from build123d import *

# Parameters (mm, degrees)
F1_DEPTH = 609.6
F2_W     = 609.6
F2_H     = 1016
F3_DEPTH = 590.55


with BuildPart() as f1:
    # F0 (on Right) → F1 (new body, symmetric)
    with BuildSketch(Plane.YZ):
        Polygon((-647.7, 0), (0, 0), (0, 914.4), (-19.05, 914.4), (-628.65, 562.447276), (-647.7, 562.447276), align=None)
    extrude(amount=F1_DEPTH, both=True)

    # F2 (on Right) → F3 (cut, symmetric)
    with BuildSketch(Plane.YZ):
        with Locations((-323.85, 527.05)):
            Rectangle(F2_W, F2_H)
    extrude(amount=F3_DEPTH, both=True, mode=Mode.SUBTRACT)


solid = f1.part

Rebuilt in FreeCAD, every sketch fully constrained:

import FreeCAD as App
import Part
import Sketcher
Q = App.Units.Quantity


def add_polygon(sketch, points):
    """Adds a closed chain of lines whose ends are joined by coincident constraints."""
    first, n = sketch.GeometryCount, len(points)
    for a, b in zip(points, points[1:] + points[:1]):
        sketch.addGeometry(Part.LineSegment(App.Vector(*a, 0), App.Vector(*b, 0)), False)
    for i in range(n):
        sketch.addConstraint(Sketcher.Constraint("Coincident", first + i, 2, first + (i + 1) % n, 1))

doc = App.newDocument("Part")
body = doc.addObject("PartDesign::Body", "Body")

# Sketch on YZ plane
sketch1 = body.newObject("Sketcher::SketchObject", "Sketch")
sketch1.AttachmentSupport = (doc.getObject("YZ_Plane"), [""])
sketch1.MapMode = "FlatFace"
add_polygon(sketch1, [(-648, 0), (0, 0), (0, 914), (-19, 914), (-629, 562), (-648, 562)])  # lines 0-5
sketch1.addConstraint(Sketcher.Constraint("Horizontal", 0))
sketch1.addConstraint(Sketcher.Constraint("Vertical", 1))
sketch1.addConstraint(Sketcher.Constraint("Horizontal", 2))
sketch1.addConstraint(Sketcher.Constraint("Horizontal", 4))
sketch1.addConstraint(Sketcher.Constraint("Vertical", 5))
sketch1.addConstraint(Sketcher.Constraint("Coincident", 0, 2, -1, 1))
sketch1.addConstraint(Sketcher.Constraint("Equal", 2, 4))
sketch1.addConstraint(Sketcher.Constraint("DistanceY", 1, 1, 1, 2, Q("36 in")))
sketch1.addConstraint(Sketcher.Constraint("DistanceX", 0, 1, 0, 2, Q("25.5 in")))
sketch1.addConstraint(Sketcher.Constraint("Angle", 3, Q("-150 deg")))
sketch1.addConstraint(Sketcher.Constraint("DistanceX", 3, 2, 2, 2, Q("24 in")))
pad1 = body.newObject("PartDesign::Pad", "Pad")
pad1.Profile = sketch1
pad1.Length = Q("48 in")
pad1.Midplane = True

# Sketch on YZ plane
sketch2 = body.newObject("Sketcher::SketchObject", "Sketch001")
sketch2.AttachmentSupport = (doc.getObject("YZ_Plane"), [""])
sketch2.MapMode = "FlatFace"
add_polygon(sketch2, [(-629, 1035), (-629, 19), (-19, 19), (-19, 1035)])  # lines 0-3
sketch2.addConstraint(Sketcher.Constraint("Vertical", 0))
sketch2.addConstraint(Sketcher.Constraint("Horizontal", 1))
sketch2.addConstraint(Sketcher.Constraint("Vertical", 2))
sketch2.addConstraint(Sketcher.Constraint("Horizontal", 3))
sketch2.addConstraint(Sketcher.Constraint("DistanceX", 1, 1, 1, 2, Q("24 in")))
sketch2.addConstraint(Sketcher.Constraint("DistanceY", 0, 2, 0, 1, Q("40 in")))
sketch2.addConstraint(Sketcher.Constraint("DistanceX", 0, 2, -1, 1, Q("24.75 in")))
sketch2.addConstraint(Sketcher.Constraint("DistanceY", -1, 1, 0, 2, Q("0.75 in")))
pocket1 = body.newObject("PartDesign::Pocket", "Pocket")
pocket1.Profile = sketch2
pocket1.Length = Q("46.5 in")
pocket1.Midplane = True

doc.recompute()
